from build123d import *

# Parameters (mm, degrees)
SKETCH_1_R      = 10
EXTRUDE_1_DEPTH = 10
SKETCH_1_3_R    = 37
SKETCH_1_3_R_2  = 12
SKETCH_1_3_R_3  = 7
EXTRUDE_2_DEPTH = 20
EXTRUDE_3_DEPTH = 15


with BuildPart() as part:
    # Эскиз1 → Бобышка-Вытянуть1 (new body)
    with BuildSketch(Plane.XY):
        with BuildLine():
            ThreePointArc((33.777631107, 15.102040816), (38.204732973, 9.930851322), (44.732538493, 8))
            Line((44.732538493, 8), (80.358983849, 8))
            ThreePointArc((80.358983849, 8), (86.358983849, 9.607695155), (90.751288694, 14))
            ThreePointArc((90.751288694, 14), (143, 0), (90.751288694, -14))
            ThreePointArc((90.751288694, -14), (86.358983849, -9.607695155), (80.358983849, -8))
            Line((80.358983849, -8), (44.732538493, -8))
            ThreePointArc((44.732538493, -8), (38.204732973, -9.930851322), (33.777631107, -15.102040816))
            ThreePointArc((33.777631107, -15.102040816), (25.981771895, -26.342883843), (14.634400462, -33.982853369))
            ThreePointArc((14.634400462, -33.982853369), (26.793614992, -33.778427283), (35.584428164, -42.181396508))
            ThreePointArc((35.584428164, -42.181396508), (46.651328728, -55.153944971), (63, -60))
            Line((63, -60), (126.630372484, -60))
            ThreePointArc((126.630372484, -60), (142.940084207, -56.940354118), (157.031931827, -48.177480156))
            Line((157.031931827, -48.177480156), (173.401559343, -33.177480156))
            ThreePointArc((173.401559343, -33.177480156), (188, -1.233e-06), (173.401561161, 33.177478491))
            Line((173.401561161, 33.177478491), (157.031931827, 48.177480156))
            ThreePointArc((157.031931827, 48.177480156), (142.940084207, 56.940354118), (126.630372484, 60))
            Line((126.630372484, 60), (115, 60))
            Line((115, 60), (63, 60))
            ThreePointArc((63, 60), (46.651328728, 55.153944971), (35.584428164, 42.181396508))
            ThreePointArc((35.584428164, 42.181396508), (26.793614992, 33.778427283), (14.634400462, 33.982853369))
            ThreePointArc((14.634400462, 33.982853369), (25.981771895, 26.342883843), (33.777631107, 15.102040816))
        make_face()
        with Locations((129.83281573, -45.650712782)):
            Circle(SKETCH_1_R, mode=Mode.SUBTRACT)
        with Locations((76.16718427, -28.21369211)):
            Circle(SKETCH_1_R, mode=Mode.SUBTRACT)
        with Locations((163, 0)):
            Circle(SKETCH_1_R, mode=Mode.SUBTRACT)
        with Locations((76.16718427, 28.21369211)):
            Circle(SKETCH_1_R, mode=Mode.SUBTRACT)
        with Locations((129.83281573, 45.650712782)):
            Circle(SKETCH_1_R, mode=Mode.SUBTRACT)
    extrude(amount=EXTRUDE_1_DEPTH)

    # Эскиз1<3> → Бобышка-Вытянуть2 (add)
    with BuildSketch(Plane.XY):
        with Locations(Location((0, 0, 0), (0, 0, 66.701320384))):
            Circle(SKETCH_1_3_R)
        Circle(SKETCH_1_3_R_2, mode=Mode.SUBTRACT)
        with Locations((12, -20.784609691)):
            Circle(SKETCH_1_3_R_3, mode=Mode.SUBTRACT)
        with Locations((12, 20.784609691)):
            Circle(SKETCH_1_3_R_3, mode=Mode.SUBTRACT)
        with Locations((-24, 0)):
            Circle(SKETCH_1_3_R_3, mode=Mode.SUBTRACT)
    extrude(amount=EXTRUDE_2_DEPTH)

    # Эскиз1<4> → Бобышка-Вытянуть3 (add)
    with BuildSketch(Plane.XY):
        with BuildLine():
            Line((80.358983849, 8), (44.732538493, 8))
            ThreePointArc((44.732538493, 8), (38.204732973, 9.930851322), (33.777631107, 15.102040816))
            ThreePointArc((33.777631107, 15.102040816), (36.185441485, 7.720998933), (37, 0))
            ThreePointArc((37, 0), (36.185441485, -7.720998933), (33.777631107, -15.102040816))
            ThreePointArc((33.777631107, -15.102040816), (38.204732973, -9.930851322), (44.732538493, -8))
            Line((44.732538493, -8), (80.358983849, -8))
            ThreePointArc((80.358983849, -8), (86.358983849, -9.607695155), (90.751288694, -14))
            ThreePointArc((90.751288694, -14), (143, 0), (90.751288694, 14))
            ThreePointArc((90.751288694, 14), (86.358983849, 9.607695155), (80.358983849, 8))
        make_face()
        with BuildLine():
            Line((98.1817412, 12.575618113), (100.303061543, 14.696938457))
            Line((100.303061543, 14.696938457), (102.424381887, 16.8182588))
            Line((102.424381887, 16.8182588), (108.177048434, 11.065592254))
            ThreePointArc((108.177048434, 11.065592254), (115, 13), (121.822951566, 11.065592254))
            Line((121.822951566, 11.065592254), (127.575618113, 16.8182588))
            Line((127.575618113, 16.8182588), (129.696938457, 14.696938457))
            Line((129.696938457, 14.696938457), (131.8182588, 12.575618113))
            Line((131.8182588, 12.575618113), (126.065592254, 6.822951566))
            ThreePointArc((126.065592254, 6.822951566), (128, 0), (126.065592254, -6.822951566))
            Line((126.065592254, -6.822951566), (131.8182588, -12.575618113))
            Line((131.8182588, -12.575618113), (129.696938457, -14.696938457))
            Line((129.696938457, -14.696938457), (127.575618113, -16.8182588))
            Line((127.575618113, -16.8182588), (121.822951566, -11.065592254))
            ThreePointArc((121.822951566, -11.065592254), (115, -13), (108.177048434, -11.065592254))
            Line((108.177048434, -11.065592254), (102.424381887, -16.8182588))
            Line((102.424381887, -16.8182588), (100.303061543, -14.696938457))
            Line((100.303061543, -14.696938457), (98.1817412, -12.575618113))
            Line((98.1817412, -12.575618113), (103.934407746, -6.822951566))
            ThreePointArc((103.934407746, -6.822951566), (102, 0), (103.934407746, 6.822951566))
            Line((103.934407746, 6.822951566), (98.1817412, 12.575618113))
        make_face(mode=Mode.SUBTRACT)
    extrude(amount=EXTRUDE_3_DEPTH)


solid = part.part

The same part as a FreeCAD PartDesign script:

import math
import FreeCAD as App
import Part
import Sketcher
Q = App.Units.Quantity

doc = App.newDocument("Part")
body = doc.addObject("PartDesign::Body", "Body")

# Sketch on XY plane
sketch1 = body.newObject("Sketcher::SketchObject", "Sketch")
sketch1.AttachmentSupport = (doc.getObject("XY_Plane"), [""])
sketch1.MapMode = "FlatFace"
sketch1.addGeometry([
    Part.ArcOfCircle(Part.Circle(App.Vector(45, 20, 0), App.Vector(0, 0, 1), 12), math.radians(-156), math.radians(-90)),  # 0
    Part.LineSegment(App.Vector(45, 8, 0), App.Vector(80, 8, 0)),  # 1
    Part.ArcOfCircle(Part.Circle(App.Vector(80, 20, 0), App.Vector(0, 0, 1), 12), math.radians(-90), math.radians(-30)),  # 2
    Part.ArcOfCircle(Part.Circle(App.Vector(115, 0, 0), App.Vector(0, 0, 1), 28), math.radians(-150), math.radians(150)),  # 3
    Part.ArcOfCircle(Part.Circle(App.Vector(80, -20, 0), App.Vector(0, 0, 1), 12), math.radians(30), math.radians(90)),  # 4
    Part.LineSegment(App.Vector(80, -8, 0), App.Vector(45, -8, 0)),  # 5
    Part.ArcOfCircle(Part.Circle(App.Vector(45, -20, 0), App.Vector(0, 0, 1), 12), math.radians(90), math.radians(156)),  # 6
    Part.ArcOfCircle(Part.Circle(App.Vector(0, 0, 0), App.Vector(0, 0, 1), 37), math.radians(-67), math.radians(-24)),  # 7
    Part.ArcOfCircle(Part.Circle(App.Vector(21, -49, 0), App.Vector(0, 0, 1), 16), math.radians(24), math.radians(113)),  # 8
    Part.ArcOfCircle(Part.Circle(App.Vector(63, -30, 0), App.Vector(0, 0, 1), 30), math.radians(-156), math.radians(-90)),  # 9
    Part.LineSegment(App.Vector(63, -60, 0), App.Vector(127, -60, 0)),  # 10
    Part.ArcOfCircle(Part.Circle(App.Vector(127, -15, 0), App.Vector(0, 0, 1), 45), math.radians(-90), math.radians(-47)),  # 11
    Part.LineSegment(App.Vector(157, -48, 0), App.Vector(173, -33, 0)),  # 12
    Part.ArcOfCircle(Part.Circle(App.Vector(143, 0, 0), App.Vector(0, 0, 1), 45), math.radians(-47), math.radians(47)),  # 13
    Part.LineSegment(App.Vector(173, 33, 0), App.Vector(157, 48, 0)),  # 14
    Part.ArcOfCircle(Part.Circle(App.Vector(127, 15, 0), App.Vector(0, 0, 1), 45), math.radians(47), math.radians(90)),  # 15
    Part.LineSegment(App.Vector(127, 60, 0), App.Vector(63, 60, 0)),  # 16
    Part.ArcOfCircle(Part.Circle(App.Vector(63, 30, 0), App.Vector(0, 0, 1), 30), math.radians(90), math.radians(156)),  # 17
    Part.ArcOfCircle(Part.Circle(App.Vector(21, 49, 0), App.Vector(0, 0, 1), 16), math.radians(-113), math.radians(-24)),  # 18
    Part.ArcOfCircle(Part.Circle(App.Vector(0, 0, 0), App.Vector(0, 0, 1), 37), math.radians(24), math.radians(67)),  # 19
    Part.Circle(App.Vector(76, -28, 0), App.Vector(0, 0, 1), 10),  # 20
    Part.Circle(App.Vector(130, -46, 0), App.Vector(0, 0, 1), 10),  # 21
    Part.Circle(App.Vector(76, 28, 0), App.Vector(0, 0, 1), 10),  # 22
    Part.Circle(App.Vector(163, 0, 0), App.Vector(0, 0, 1), 10),  # 23
    Part.Circle(App.Vector(130, 46, 0), App.Vector(0, 0, 1), 10),  # 24
], False)
sketch1.addConstraint([
    Sketcher.Constraint("Tangent", 0, 2, 1, 1),
    Sketcher.Constraint("Tangent", 1, 2, 2, 1),
    Sketcher.Constraint("Tangent", 2, 2, 3, 2),
    Sketcher.Constraint("Tangent", 3, 1, 4, 1),
    Sketcher.Constraint("Tangent", 4, 2, 5, 1),
    Sketcher.Constraint("Tangent", 5, 2, 6, 1),
    Sketcher.Constraint("Tangent", 6, 2, 7, 2),
    Sketcher.Constraint("Tangent", 7, 1, 8, 2),
    Sketcher.Constraint("Tangent", 8, 1, 9, 1),
    Sketcher.Constraint("Tangent", 9, 2, 10, 1),
    Sketcher.Constraint("Tangent", 10, 2, 11, 1),
    Sketcher.Constraint("Tangent", 11, 2, 12, 1),
    Sketcher.Constraint("Tangent", 12, 2, 13, 1),
    Sketcher.Constraint("Tangent", 13, 2, 14, 1),
    Sketcher.Constraint("Tangent", 14, 2, 15, 1),
    Sketcher.Constraint("Tangent", 15, 2, 16, 1),
    Sketcher.Constraint("Tangent", 16, 2, 17, 1),
    Sketcher.Constraint("Tangent", 17, 2, 18, 2),
    Sketcher.Constraint("Tangent", 18, 1, 19, 2),
    Sketcher.Constraint("Tangent", 19, 1, 0, 1),
    Sketcher.Constraint("Horizontal", 1),
    Sketcher.Constraint("Horizontal", 5),
    Sketcher.Constraint("Horizontal", 10),
    Sketcher.Constraint("Horizontal", 16),
    Sketcher.Constraint("Coincident", 7, 3, -1, 1),
    Sketcher.Constraint("Coincident", 19, 3, -1, 1),
    Sketcher.Constraint("Equal", 0, 2),
    Sketcher.Constraint("Equal", 2, 4),
    Sketcher.Constraint("Equal", 4, 6),
    Sketcher.Constraint("Equal", 11, 13),
    Sketcher.Constraint("Equal", 13, 15),
    Sketcher.Constraint("Equal", 9, 17),
    Sketcher.Constraint("Equal", 8, 18),
    Sketcher.Constraint("Equal", 7, 19),
    Sketcher.Constraint("Equal", 20, 21),
    Sketcher.Constraint("Equal", 21, 22),
    Sketcher.Constraint("Equal", 22, 23),
    Sketcher.Constraint("Equal", 23, 24),
    Sketcher.Constraint("Symmetric", 2, 3, 4, 3, -1),
    Sketcher.Constraint("Symmetric", 11, 3, 15, 3, -1),
    Sketcher.Constraint("Symmetric", 20, 3, 22, 3, -1),
    Sketcher.Constraint("Symmetric", 21, 3, 24, 3, -1),
    Sketcher.Constraint("PointOnObject", 13, 3, -1),
    Sketcher.Constraint("PointOnObject", 23, 3, -1),
    Sketcher.Constraint("Vertical", 9, 3, 17, 3),
    Sketcher.Constraint("Diameter", 20, Q("20 mm")),
    Sketcher.Constraint("Radius", 0, Q("12 mm")),
    Sketcher.Constraint("Radius", 3, Q("28 mm")),
    Sketcher.Constraint("Radius", 7, Q("37 mm")),
    Sketcher.Constraint("Radius", 8, Q("16 mm")),
    Sketcher.Constraint("Radius", 9, Q("30 mm")),
    Sketcher.Constraint("Radius", 11, Q("45 mm")),
    Sketcher.Constraint("DistanceY", -1, 1, 0, 3, Q("20 mm")),
    Sketcher.Constraint("DistanceX", -1, 1, 3, 3, Q("115 mm")),
    Sketcher.Constraint("DistanceX", -1, 1, 9, 3, Q("63 mm")),
    Sketcher.Constraint("DistanceY", 9, 3, -1, 1, Q("30 mm")),
    Sketcher.Constraint("DistanceX", -1, 1, 13, 3, Q("143 mm")),
    Sketcher.Constraint("DistanceX", -1, 1, 23, 3, Q("163 mm")),
    Sketcher.Constraint("Angle", 12, Q("42.5 deg")),
    Sketcher.Constraint("DistanceX", 20, 3, 4, 3, Q("4.1918 mm")),
    Sketcher.Constraint("DistanceX", 4, 3, 21, 3, Q("49.473832 mm")),
    Sketcher.Constraint("DistanceY", 21, 3, 20, 3, Q("17.437021 mm")),
    Sketcher.Constraint("DistanceY", 20, 3, -1, 1, Q("28.213692 mm")),
])
pad1 = body.newObject("PartDesign::Pad", "Pad")
pad1.Profile = sketch1
pad1.Length = 10

# Sketch on XY plane
sketch2 = body.newObject("Sketcher::SketchObject", "Sketch001")
sketch2.AttachmentSupport = (doc.getObject("XY_Plane"), [""])
sketch2.MapMode = "FlatFace"
sketch2.addGeometry([
    Part.Circle(App.Vector(0, 0, 0), App.Vector(0, 0, 1), 37),  # 0
    Part.Circle(App.Vector(12, -21, 0), App.Vector(0, 0, 1), 7),  # 1
    Part.Circle(App.Vector(0, 0, 0), App.Vector(0, 0, 1), 12),  # 2
    Part.Circle(App.Vector(12, 21, 0), App.Vector(0, 0, 1), 7),  # 3
    Part.Circle(App.Vector(-24, 0, 0), App.Vector(0, 0, 1), 7),  # 4
], False)
sketch2.addConstraint([
    Sketcher.Constraint("Coincident", 0, 3, -1, 1),
    Sketcher.Constraint("Coincident", 2, 3, -1, 1),
    Sketcher.Constraint("Equal", 1, 3),
    Sketcher.Constraint("Equal", 3, 4),
    Sketcher.Constraint("Symmetric", 1, 3, 3, 3, -1),
    Sketcher.Constraint("PointOnObject", 4, 3, -1),
    Sketcher.Constraint("Diameter", 0, Q("74 mm")),
    Sketcher.Constraint("Diameter", 1, Q("14 mm")),
    Sketcher.Constraint("Diameter", 2, Q("24 mm")),
    Sketcher.Constraint("DistanceX", -1, 1, 1, 3, Q("12 mm")),
    Sketcher.Constraint("DistanceX", 4, 3, -1, 1, Q("24 mm")),
    Sketcher.Constraint("DistanceY", 1, 3, -1, 1, Q("20.78461 mm")),
])
pad2 = body.newObject("PartDesign::Pad", "Pad001")
pad2.Profile = sketch2
pad2.Length = 20

# Sketch on XY plane
sketch3 = body.newObject("Sketcher::SketchObject", "Sketch002")
sketch3.AttachmentSupport = (doc.getObject("XY_Plane"), [""])
sketch3.MapMode = "FlatFace"
sketch3.addGeometry([
    Part.LineSegment(App.Vector(80.4, 8, 0), App.Vector(44.7, 8, 0)),  # 0
    Part.ArcOfCircle(Part.Circle(App.Vector(44.7, 20, 0), App.Vector(0, 0, 1), 12), math.radians(-156), math.radians(-90)),  # 1
    Part.ArcOfCircle(Part.Circle(App.Vector(0, 0, 0), App.Vector(0, 0, 1), 37), math.radians(0), math.radians(24)),  # 2
    Part.ArcOfCircle(Part.Circle(App.Vector(0, 0, 0), App.Vector(0, 0, 1), 37), math.radians(-24), math.radians(0)),  # 3
    Part.ArcOfCircle(Part.Circle(App.Vector(44.7, -20, 0), App.Vector(0, 0, 1), 12), math.radians(90), math.radians(156)),  # 4
    Part.LineSegment(App.Vector(44.7, -8, 0), App.Vector(80.4, -8, 0)),  # 5
    Part.ArcOfCircle(Part.Circle(App.Vector(80.4, -20, 0), App.Vector(0, 0, 1), 12), math.radians(30), math.radians(90)),  # 6
    Part.ArcOfCircle(Part.Circle(App.Vector(115, 0, 0), App.Vector(0, 0, 1), 28), math.radians(-150), math.radians(150)),  # 7
    Part.ArcOfCircle(Part.Circle(App.Vector(80.4, 20, 0), App.Vector(0, 0, 1), 12), math.radians(-90), math.radians(-30)),  # 8
    Part.LineSegment(App.Vector(103.9, 6.8, 0), App.Vector(98.2, 12.6, 0)),  # 9
    Part.LineSegment(App.Vector(98.2, 12.6, 0), App.Vector(100.3, 14.7, 0)),  # 10
    Part.LineSegment(App.Vector(100.3, 14.7, 0), App.Vector(102.4, 16.8, 0)),  # 11
    Part.LineSegment(App.Vector(102.4, 16.8, 0), App.Vector(108.2, 11.1, 0)),  # 12
    Part.ArcOfCircle(Part.Circle(App.Vector(115, 0, 0), App.Vector(0, 0, 1), 13), math.radians(58), math.radians(122)),  # 13
    Part.LineSegment(App.Vector(121.8, 11.1, 0), App.Vector(127.6, 16.8, 0)),  # 14
    Part.LineSegment(App.Vector(127.6, 16.8, 0), App.Vector(129.7, 14.7, 0)),  # 15
    Part.LineSegment(App.Vector(129.7, 14.7, 0), App.Vector(131.8, 12.6, 0)),  # 16
    Part.LineSegment(App.Vector(131.8, 12.6, 0), App.Vector(126.1, 6.8, 0)),  # 17
    Part.ArcOfCircle(Part.Circle(App.Vector(115, 0, 0), App.Vector(0, 0, 1), 13), math.radians(-32), math.radians(32)),  # 18
    Part.LineSegment(App.Vector(126.1, -6.8, 0), App.Vector(131.8, -12.6, 0)),  # 19
    Part.LineSegment(App.Vector(131.8, -12.6, 0), App.Vector(129.7, -14.7, 0)),  # 20
    Part.LineSegment(App.Vector(129.7, -14.7, 0), App.Vector(127.6, -16.8, 0)),  # 21
    Part.LineSegment(App.Vector(127.6, -16.8, 0), App.Vector(121.8, -11.1, 0)),  # 22
    Part.ArcOfCircle(Part.Circle(App.Vector(115, 0, 0), App.Vector(0, 0, 1), 13), math.radians(-122), math.radians(-58)),  # 23
    Part.LineSegment(App.Vector(108.2, -11.1, 0), App.Vector(102.4, -16.8, 0)),  # 24
    Part.LineSegment(App.Vector(102.4, -16.8, 0), App.Vector(100.3, -14.7, 0)),  # 25
    Part.LineSegment(App.Vector(100.3, -14.7, 0), App.Vector(98.2, -12.6, 0)),  # 26
    Part.LineSegment(App.Vector(98.2, -12.6, 0), App.Vector(103.9, -6.8, 0)),  # 27
    Part.ArcOfCircle(Part.Circle(App.Vector(115, 0, 0), App.Vector(0, 0, 1), 13), math.radians(148), math.radians(212)),  # 28
], False)
sketch3.addConstraint([
    Sketcher.Constraint("Tangent", 0, 2, 1, 2),
    Sketcher.Constraint("Tangent", 1, 1, 2, 2),
    Sketcher.Constraint("Tangent", 2, 1, 3, 2),
    Sketcher.Constraint("Tangent", 3, 1, 4, 2),
    Sketcher.Constraint("Tangent", 4, 1, 5, 1),
    Sketcher.Constraint("Tangent", 5, 2, 6, 2),
    Sketcher.Constraint("Tangent", 6, 1, 7, 1),
    Sketcher.Constraint("Tangent", 7, 2, 8, 2),
    Sketcher.Constraint("Tangent", 8, 1, 0, 1),
    Sketcher.Constraint("Coincident", 9, 2, 10, 1),
    Sketcher.Constraint("Coincident", 10, 2, 11, 1),
    Sketcher.Constraint("Coincident", 11, 2, 12, 1),
    Sketcher.Constraint("Coincident", 12, 2, 13, 2),
    Sketcher.Constraint("Coincident", 13, 1, 14, 1),
    Sketcher.Constraint("Coincident", 14, 2, 15, 1),
    Sketcher.Constraint("Coincident", 15, 2, 16, 1),
    Sketcher.Constraint("Coincident", 16, 2, 17, 1),
    Sketcher.Constraint("Coincident", 17, 2, 18, 2),
    Sketcher.Constraint("Coincident", 18, 1, 19, 1),
    Sketcher.Constraint("Coincident", 19, 2, 20, 1),
    Sketcher.Constraint("Coincident", 20, 2, 21, 1),
    Sketcher.Constraint("Coincident", 21, 2, 22, 1),
    Sketcher.Constraint("Coincident", 22, 2, 23, 2),
    Sketcher.Constraint("Coincident", 23, 1, 24, 1),
    Sketcher.Constraint("Coincident", 24, 2, 25, 1),
    Sketcher.Constraint("Coincident", 25, 2, 26, 1),
    Sketcher.Constraint("Coincident", 26, 2, 27, 1),
    Sketcher.Constraint("Coincident", 27, 2, 28, 2),
    Sketcher.Constraint("Coincident", 28, 1, 9, 1),
    Sketcher.Constraint("Horizontal", 0),
    Sketcher.Constraint("Horizontal", 5),
    Sketcher.Constraint("Coincident", 2, 3, -1, 1),
    Sketcher.Constraint("Coincident", 13, 3, 7, 3),
    Sketcher.Constraint("Coincident", 18, 3, 7, 3),
    Sketcher.Constraint("Coincident", 23, 3, 7, 3),
    Sketcher.Constraint("Coincident", 28, 3, 7, 3),
    Sketcher.Constraint("Equal", 2, 3),
    Sketcher.Constraint("Equal", 1, 4),
    Sketcher.Constraint("Equal", 4, 6),
    Sketcher.Constraint("Equal", 6, 8),
    Sketcher.Constraint("Equal", 13, 18),
    Sketcher.Constraint("Equal", 18, 23),
    Sketcher.Constraint("Equal", 23, 28),
    Sketcher.Constraint("Symmetric", 6, 3, 8, 3, -1),
    Sketcher.Constraint("Symmetric", 16, 2, 19, 2, -1),
    Sketcher.Constraint("Symmetric", 15, 2, 20, 2, -1),
    Sketcher.Constraint("Symmetric", 14, 2, 21, 2, -1),
    Sketcher.Constraint("Symmetric", 11, 2, 24, 2, -1),
    Sketcher.Constraint("Symmetric", 10, 2, 25, 2, -1),
    Sketcher.Constraint("Symmetric", 9, 2, 26, 2, -1),
    Sketcher.Constraint("PointOnObject", 2, 1, -1),
    Sketcher.Constraint("Perpendicular", 9, 10),
    Sketcher.Constraint("Parallel", 10, 11),
    Sketcher.Constraint("Perpendicular", 11, 12),
    Sketcher.Constraint("Perpendicular", 12, 14),
    Sketcher.Constraint("Perpendicular", 14, 15),
    Sketcher.Constraint("Parallel", 15, 16),
    Sketcher.Constraint("Perpendicular", 16, 17),
    Sketcher.Constraint("Perpendicular", 17, 19),
    Sketcher.Constraint("Perpendicular", 19, 20),
    Sketcher.Constraint("Perpendicular", 21, 22),
    Sketcher.Constraint("Perpendicular", 22, 24),
    Sketcher.Constraint("Perpendicular", 26, 27),
    Sketcher.Constraint("Horizontal", 12, 2, 13, 1),
    Sketcher.Constraint("Horizontal", 11, 2, 14, 2),
    Sketcher.Constraint("Horizontal", 10, 2, 15, 2),
    Sketcher.Constraint("Horizontal", 9, 2, 16, 2),
    Sketcher.Constraint("Equal", 10, 11),
    Sketcher.Constraint("Equal", 9, 12),
    Sketcher.Constraint("Radius", 1, Q("12 mm")),
    Sketcher.Constraint("Radius", 2, Q("37 mm")),
    Sketcher.Constraint("Radius", 7, Q("28 mm")),
    Sketcher.Constraint("Radius", 13, Q("13 mm")),
    Sketcher.Constraint("Distance", 10, Q("3 mm")),
    Sketcher.Constraint("DistanceY", -1, 1, 1, 3, Q("20 mm")),
    Sketcher.Constraint("DistanceX", -1, 1, 7, 3, Q("115 mm")),
    Sketcher.Constraint("Distance", 9, Q("8.135499 mm")),
])
pad3 = body.newObject("PartDesign::Pad", "Pad002")
pad3.Profile = sketch3
pad3.Length = 15

doc.recompute()
